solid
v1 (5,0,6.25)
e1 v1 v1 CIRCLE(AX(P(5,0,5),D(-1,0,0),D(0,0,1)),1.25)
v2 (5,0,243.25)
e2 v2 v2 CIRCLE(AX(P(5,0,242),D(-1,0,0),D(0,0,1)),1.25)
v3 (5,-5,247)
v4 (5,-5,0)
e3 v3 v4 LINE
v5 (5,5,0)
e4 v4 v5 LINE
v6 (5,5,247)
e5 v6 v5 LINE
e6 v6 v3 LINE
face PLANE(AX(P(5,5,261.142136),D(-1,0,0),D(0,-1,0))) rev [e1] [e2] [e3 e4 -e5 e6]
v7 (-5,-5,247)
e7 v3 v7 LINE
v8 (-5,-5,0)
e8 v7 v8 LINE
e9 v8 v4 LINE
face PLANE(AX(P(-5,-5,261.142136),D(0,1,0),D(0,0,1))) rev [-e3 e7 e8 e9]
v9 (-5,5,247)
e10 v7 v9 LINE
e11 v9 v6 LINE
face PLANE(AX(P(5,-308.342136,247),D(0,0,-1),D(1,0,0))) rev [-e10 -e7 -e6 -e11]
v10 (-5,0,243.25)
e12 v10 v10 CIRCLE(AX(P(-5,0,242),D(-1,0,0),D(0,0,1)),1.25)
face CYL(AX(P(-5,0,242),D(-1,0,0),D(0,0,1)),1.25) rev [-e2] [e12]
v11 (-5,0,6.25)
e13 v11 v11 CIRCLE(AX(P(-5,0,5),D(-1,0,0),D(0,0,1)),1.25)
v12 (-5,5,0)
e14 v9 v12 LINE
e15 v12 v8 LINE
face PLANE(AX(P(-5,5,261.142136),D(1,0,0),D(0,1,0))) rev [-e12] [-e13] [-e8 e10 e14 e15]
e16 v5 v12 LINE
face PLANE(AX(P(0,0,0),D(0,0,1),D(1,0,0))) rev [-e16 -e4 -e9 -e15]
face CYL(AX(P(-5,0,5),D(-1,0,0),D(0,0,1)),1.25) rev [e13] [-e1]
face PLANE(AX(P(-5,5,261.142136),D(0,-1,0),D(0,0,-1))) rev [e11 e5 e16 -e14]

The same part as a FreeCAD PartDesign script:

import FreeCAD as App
import Part
import Sketcher

V = App.Vector


def add_polygon(sketch, points):
    """Adds a closed chain of lines whose ends are joined by coincident constraints."""
    first, n = sketch.GeometryCount, len(points)
    for a, b in zip(points, points[1:] + points[:1]):
        sketch.addGeometry(Part.LineSegment(App.Vector(*a, 0), App.Vector(*b, 0)), False)
    for i in range(n):
        sketch.addConstraint(Sketcher.Constraint("Coincident", first + i, 2, first + (i + 1) % n, 1))

doc = App.newDocument("Part")
body = doc.addObject("PartDesign::Body", "Body")

sketch1 = doc.addObject("Sketcher::SketchObject", "Sketch")
body.addObject(sketch1)
sketch1.AttachmentSupport = (doc.XY_Plane, [""])
sketch1.MapMode = "FlatFace"
add_polygon(sketch1, [(-5, 5), (-5, -5), (5, -5), (5, 5)])
sketch1.addConstraint([
    Sketcher.Constraint("Vertical", 0),
    Sketcher.Constraint("Horizontal", 1),
    Sketcher.Constraint("Vertical", 2),
    Sketcher.Constraint("Horizontal", 3),
    Sketcher.Constraint("Symmetric", 0, 2, 2, 2, -1, 1),
    Sketcher.Constraint("Equal", 3, 0),
    Sketcher.Constraint("DistanceX", 1, 1, 1, 2, 10.0),
])
pad1 = doc.addObject("PartDesign::Pad", "Pad")
body.addObject(pad1)
pad1.Profile = sketch1
pad1.Length = 247

sketch2 = doc.addObject("Sketcher::SketchObject", "Sketch001")
body.addObject(sketch2)
sketch2.AttachmentSupport = (doc.YZ_Plane, [""])
sketch2.MapMode = "FlatFace"
sketch2.AttachmentOffset = App.Placement(V(0, 0, -5), App.Rotation())
sketch2.addGeometry([
    Part.Circle(V(0, 242, 0), V(0, 0, 1), 1.2),
    Part.Circle(V(0, 5, 0), V(0, 0, 1), 1.2),
], False)
sketch2.addConstraint([
    Sketcher.Constraint("Equal", 0, 1),
    Sketcher.Constraint("PointOnObject", 0, 3, -2),
    Sketcher.Constraint("PointOnObject", 1, 3, -2),
    Sketcher.Constraint("Diameter", 0, 2.5),
    Sketcher.Constraint("DistanceY", -1, 1, 0, 3, 242.0),
    Sketcher.Constraint("DistanceY", -1, 1, 1, 3, 5.0),
])
doc.recompute()
hole = doc.addObject("PartDesign::Hole", "Hole")
body.addObject(hole)
hole.Profile = sketch2
hole.ThreadType = "None"
hole.Diameter = 2.5
hole.DepthType = "ThroughAll"
hole.Reversed = True

doc.recompute()
